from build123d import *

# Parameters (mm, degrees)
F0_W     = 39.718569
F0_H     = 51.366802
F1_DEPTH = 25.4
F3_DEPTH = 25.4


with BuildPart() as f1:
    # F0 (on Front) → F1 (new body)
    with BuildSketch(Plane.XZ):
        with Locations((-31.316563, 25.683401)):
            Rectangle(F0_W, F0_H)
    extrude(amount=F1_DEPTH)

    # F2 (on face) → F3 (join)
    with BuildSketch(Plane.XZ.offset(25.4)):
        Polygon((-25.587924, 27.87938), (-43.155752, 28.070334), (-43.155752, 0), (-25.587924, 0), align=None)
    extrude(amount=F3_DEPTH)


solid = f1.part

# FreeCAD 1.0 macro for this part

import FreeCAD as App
import Part
import Sketcher
Q = App.Units.Quantity


def add_polygon(sketch, points):
    """Adds a closed chain of lines whose ends are joined by coincident constraints."""
    first, n = sketch.GeometryCount, len(points)
    for a, b in zip(points, points[1:] + points[:1]):
        sketch.addGeometry(Part.LineSegment(App.Vector(*a, 0), App.Vector(*b, 0)), False)
    for i in range(n):
        sketch.addConstraint(Sketcher.Constraint("Coincident", first + i, 2, first + (i + 1) % n, 1))

doc = App.newDocument("Part")
params = doc.addObject("Spreadsheet::Sheet", "Params")
for row, (alias, value) in enumerate([
    ("pad1_length", "1 in"),
    ("pad2_length", "1 in"),
], start=1):
    params.set(f"A{row}", alias)
    params.set(f"B{row}", "=" + value)
    params.setAlias(f"B{row}", alias)

body = doc.addObject("PartDesign::Body", "Body")

# Sketch on XZ plane
sketch1 = doc.addObject("Sketcher::SketchObject", "Sketch")
body.addObject(sketch1)
sketch1.AttachmentSupport = (doc.XZ_Plane, [""])
sketch1.MapMode = "FlatFace"
add_polygon(sketch1, [(-51.175848, 51.366802), (-51.175848, 0), (-11.457278, 0), (-11.457278, 51.366802)])  # lines 0-3
sketch1.addConstraint(Sketcher.Constraint("Vertical", 0))
sketch1.addConstraint(Sketcher.Constraint("Horizontal", 1))
sketch1.addConstraint(Sketcher.Constraint("Vertical", 2))
sketch1.addConstraint(Sketcher.Constraint("Horizontal", 3))
sketch1.addConstraint(Sketcher.Constraint("PointOnObject", 0, 2, -1))
sketch1.addConstraint(Sketcher.Constraint("DistanceX", 1, 1, 1, 2, Q("39.718569 mm")))
sketch1.addConstraint(Sketcher.Constraint("DistanceY", 0, 2, 0, 1, Q("51.366802 mm")))
sketch1.addConstraint(Sketcher.Constraint("DistanceX", 1, 2, -1, 1, Q("11.457278 mm")))
pad1 = doc.addObject("PartDesign::Pad", "Pad")
body.addObject(pad1)
pad1.Profile = sketch1
pad1.setExpression("Length", "Params.pad1_length")

# Sketch on XZ plane
sketch2 = doc.addObject("Sketcher::SketchObject", "Sketch001")
body.addObject(sketch2)
sketch2.AttachmentSupport = (doc.XZ_Plane, [""])
sketch2.MapMode = "FlatFace"
sketch2.AttachmentOffset = App.Placement(App.Vector(0, 0, 1 * 25.4), App.Rotation())
add_polygon(sketch2, [(-25.587924, 27.87938), (-43.155752, 28.070334), (-43.155752, 0), (-25.587924, 0)])  # lines 0-3
sketch2.addConstraint(Sketcher.Constraint("Vertical", 1))
sketch2.addConstraint(Sketcher.Constraint("Horizontal", 2))
sketch2.addConstraint(Sketcher.Constraint("Vertical", 3))
sketch2.addConstraint(Sketcher.Constraint("PointOnObject", 1, 2, -1))
sketch2.addConstraint(Sketcher.Constraint("DistanceY", 3, 1, 3, 2, Q("27.87938 mm")))
sketch2.addConstraint(Sketcher.Constraint("DistanceX", 2, 1, 2, 2, Q("17.567828 mm")))
sketch2.addConstraint(Sketcher.Constraint("DistanceY", 1, 2, 1, 1, Q("28.070334 mm")))
sketch2.addConstraint(Sketcher.Constraint("DistanceX", 0, 2, -1, 1, Q("43.155752 mm")))
pad2 = doc.addObject("PartDesign::Pad", "Pad001")
body.addObject(pad2)
pad2.Profile = sketch2
pad2.setExpression("Length", "Params.pad2_length")

doc.recompute()
